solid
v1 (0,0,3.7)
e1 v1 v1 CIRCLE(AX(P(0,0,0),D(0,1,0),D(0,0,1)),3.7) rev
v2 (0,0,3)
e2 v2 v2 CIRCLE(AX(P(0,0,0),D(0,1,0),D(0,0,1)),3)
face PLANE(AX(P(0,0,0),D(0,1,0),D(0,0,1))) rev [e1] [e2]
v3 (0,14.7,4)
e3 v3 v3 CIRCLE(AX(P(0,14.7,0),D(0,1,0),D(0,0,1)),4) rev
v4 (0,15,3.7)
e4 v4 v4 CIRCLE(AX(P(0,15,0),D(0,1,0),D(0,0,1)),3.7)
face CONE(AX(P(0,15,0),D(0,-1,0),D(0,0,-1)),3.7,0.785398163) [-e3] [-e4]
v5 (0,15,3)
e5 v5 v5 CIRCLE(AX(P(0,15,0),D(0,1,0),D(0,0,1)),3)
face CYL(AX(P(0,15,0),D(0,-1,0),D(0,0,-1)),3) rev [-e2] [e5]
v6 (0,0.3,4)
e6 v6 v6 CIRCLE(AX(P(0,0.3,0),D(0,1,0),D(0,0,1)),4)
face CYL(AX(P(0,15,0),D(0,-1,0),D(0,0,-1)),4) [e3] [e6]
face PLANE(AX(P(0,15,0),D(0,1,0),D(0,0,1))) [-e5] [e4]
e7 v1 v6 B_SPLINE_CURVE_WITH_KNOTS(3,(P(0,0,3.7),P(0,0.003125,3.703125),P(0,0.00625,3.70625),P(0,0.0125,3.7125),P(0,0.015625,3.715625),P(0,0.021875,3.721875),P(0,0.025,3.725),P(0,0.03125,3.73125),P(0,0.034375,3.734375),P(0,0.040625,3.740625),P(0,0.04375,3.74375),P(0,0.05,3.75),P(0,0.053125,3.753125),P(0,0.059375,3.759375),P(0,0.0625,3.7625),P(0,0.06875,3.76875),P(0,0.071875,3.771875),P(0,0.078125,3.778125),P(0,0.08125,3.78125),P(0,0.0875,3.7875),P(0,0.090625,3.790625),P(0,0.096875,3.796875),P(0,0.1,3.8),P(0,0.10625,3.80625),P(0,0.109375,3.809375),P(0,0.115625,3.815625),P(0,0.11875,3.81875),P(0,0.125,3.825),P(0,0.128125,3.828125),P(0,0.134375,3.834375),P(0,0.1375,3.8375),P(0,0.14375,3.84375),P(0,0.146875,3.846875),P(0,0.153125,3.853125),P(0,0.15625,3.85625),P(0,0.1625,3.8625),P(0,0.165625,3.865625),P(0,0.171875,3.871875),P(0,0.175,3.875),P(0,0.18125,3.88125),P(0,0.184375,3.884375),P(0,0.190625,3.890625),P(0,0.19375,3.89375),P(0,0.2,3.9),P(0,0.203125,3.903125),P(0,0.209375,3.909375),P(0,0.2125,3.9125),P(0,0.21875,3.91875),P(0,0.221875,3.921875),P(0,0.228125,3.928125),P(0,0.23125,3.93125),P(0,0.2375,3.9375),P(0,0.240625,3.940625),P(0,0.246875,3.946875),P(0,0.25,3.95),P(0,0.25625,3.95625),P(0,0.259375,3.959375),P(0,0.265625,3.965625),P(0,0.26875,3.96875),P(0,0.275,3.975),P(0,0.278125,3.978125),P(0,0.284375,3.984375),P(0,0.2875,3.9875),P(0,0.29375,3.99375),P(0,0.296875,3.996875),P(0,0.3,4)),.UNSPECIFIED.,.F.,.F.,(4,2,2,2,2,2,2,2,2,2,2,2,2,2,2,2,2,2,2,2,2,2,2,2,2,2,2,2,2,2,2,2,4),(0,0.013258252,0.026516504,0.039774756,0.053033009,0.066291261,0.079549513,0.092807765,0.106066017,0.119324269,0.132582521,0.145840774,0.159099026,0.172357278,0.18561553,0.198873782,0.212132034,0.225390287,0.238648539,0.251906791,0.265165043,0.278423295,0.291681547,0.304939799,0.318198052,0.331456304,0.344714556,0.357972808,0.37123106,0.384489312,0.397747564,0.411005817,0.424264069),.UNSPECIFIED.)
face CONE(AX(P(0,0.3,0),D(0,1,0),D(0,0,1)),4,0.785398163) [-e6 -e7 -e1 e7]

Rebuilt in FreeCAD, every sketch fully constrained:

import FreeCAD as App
import Part
import Sketcher
from FreeCAD import Vector


def edges_at(feature, points):
    """Names of the edges that pass closest to the given points."""
    edges = feature.Shape.Edges
    near = lambda p: min(range(len(edges)), key=lambda i: edges[i].distToShape(Part.Vertex(*p))[0])
    return sorted({f"Edge{near(p) + 1}" for p in points})

doc = App.newDocument("Part")
body = doc.addObject("PartDesign::Body", "Body")

# Sketch on XZ plane
sketch1 = doc.addObject("Sketcher::SketchObject", "Sketch")
body.addObject(sketch1)
sketch1.AttachmentSupport = (doc.XZ_Plane, [""])
sketch1.MapMode = "FlatFace"
sketch1.addGeometry([
    Part.Circle(Vector(0, 0, 0), Vector(0, 0, 1), 4),
    Part.Circle(Vector(0, 0, 0), Vector(0, 0, 1), 3),
], False)
sketch1.addConstraint([
    Sketcher.Constraint("Coincident", 0, 3, -1, 1),
    Sketcher.Constraint("Coincident", 1, 3, -1, 1),
    Sketcher.Constraint("Diameter", 0, 8.0),
    Sketcher.Constraint("Diameter", 1, 6.0),
])
pad1 = doc.addObject("PartDesign::Pad", "Pad")
body.addObject(pad1)
pad1.Profile = sketch1
pad1.Length = 15
pad1.Reversed = True
doc.recompute()

chamfer = doc.addObject("PartDesign::Chamfer", "Chamfer")
body.addObject(chamfer)
chamfer.Base = (pad1, edges_at(pad1, [(0, 0, -4), (0, 15, -4)]))
chamfer.Size = 0.3

doc.recompute()
